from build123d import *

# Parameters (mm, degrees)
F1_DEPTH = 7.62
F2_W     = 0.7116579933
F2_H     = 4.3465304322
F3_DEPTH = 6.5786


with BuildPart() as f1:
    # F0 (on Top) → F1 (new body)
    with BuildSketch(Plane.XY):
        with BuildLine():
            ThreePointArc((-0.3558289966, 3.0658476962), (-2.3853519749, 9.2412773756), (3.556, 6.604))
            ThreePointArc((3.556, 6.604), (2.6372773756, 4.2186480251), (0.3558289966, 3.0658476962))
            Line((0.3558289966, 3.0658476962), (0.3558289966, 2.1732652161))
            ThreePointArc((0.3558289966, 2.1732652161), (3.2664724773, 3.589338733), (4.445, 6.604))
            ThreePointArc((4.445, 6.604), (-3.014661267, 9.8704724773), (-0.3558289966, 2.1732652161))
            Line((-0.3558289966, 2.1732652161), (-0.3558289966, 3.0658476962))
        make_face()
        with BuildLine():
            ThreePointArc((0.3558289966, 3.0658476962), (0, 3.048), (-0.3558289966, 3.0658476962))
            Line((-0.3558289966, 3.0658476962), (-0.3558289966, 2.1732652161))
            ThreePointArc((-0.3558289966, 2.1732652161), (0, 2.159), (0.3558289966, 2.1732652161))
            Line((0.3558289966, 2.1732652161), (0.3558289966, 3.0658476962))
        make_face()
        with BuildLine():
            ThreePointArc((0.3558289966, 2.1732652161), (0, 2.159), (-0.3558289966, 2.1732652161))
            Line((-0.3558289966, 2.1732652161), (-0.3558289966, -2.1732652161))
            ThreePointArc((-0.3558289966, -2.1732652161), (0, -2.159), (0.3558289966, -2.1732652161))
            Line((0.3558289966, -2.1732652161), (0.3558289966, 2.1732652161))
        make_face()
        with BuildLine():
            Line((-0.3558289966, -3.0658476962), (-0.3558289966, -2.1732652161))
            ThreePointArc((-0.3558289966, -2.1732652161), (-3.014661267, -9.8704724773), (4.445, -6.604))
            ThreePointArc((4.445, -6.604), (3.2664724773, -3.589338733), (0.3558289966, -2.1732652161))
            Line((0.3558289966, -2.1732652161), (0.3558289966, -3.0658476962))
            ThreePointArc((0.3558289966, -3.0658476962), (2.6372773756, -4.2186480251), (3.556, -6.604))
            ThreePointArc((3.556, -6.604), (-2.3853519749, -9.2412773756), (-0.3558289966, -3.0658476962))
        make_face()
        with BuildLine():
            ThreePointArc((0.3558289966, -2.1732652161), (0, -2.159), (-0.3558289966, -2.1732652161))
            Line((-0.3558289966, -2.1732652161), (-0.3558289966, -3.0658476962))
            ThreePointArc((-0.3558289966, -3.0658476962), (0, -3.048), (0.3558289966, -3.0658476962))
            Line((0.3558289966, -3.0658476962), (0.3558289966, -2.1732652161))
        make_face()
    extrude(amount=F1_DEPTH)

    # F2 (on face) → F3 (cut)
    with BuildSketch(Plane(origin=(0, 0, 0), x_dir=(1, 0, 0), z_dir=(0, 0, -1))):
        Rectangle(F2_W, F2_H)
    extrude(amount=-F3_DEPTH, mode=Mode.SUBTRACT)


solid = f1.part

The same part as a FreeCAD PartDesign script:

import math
import FreeCAD as App
import Part
import Sketcher
Q = App.Units.Quantity


def add_polygon(sketch, points):
    """Adds a closed chain of lines whose ends are joined by coincident constraints."""
    first, n = sketch.GeometryCount, len(points)
    for a, b in zip(points, points[1:] + points[:1]):
        sketch.addGeometry(Part.LineSegment(App.Vector(*a, 0), App.Vector(*b, 0)), False)
    for i in range(n):
        sketch.addConstraint(Sketcher.Constraint("Coincident", first + i, 2, first + (i + 1) % n, 1))

doc = App.newDocument("Part")
body = doc.addObject("PartDesign::Body", "Body")

# Sketch on XY plane
sketch1 = doc.addObject("Sketcher::SketchObject", "Sketch")
body.addObject(sketch1)
sketch1.AttachmentSupport = (doc.XY_Plane, [""])
sketch1.MapMode = "FlatFace"
sketch1.addGeometry(Part.ArcOfCircle(Part.Circle(App.Vector(0, 6.6, 0), App.Vector(0, 0, 1), 4.4), math.radians(-85), math.radians(0)), False)
sketch1.addGeometry(Part.ArcOfCircle(Part.Circle(App.Vector(0, 6.6, 0), App.Vector(0, 0, 1), 4.4), math.radians(0), math.radians(265)), False)
sketch1.addGeometry(Part.LineSegment(App.Vector(-0.4, 2.2, 0), App.Vector(-0.4, -2.2, 0)), False)
sketch1.addGeometry(Part.ArcOfCircle(Part.Circle(App.Vector(0, -6.6, 0), App.Vector(0, 0, 1), 4.4), math.radians(95), math.radians(360)), False)
sketch1.addGeometry(Part.ArcOfCircle(Part.Circle(App.Vector(0, -6.6, 0), App.Vector(0, 0, 1), 4.4), math.radians(0), math.radians(85)), False)
sketch1.addGeometry(Part.LineSegment(App.Vector(0.4, -2.2, 0), App.Vector(0.4, 2.2, 0)), False)
sketch1.addGeometry(Part.ArcOfCircle(Part.Circle(App.Vector(0, 6.6, 0), App.Vector(0, 0, 1), 3.6), math.radians(0), math.radians(264)), False)
sketch1.addGeometry(Part.ArcOfCircle(Part.Circle(App.Vector(0, 6.6, 0), App.Vector(0, 0, 1), 3.6), math.radians(-84), math.radians(0)), False)
sketch1.addGeometry(Part.ArcOfCircle(Part.Circle(App.Vector(0, 6.6, 0), App.Vector(0, 0, 1), 3.6), math.radians(-95.74), math.radians(-84.26)), False)
sketch1.addGeometry(Part.ArcOfCircle(Part.Circle(App.Vector(0, -6.6, 0), App.Vector(0, 0, 1), 3.6), math.radians(84.26), math.radians(95.74)), False)
sketch1.addGeometry(Part.ArcOfCircle(Part.Circle(App.Vector(0, -6.6, 0), App.Vector(0, 0, 1), 3.6), math.radians(0), math.radians(84)), False)
sketch1.addGeometry(Part.ArcOfCircle(Part.Circle(App.Vector(0, -6.6, 0), App.Vector(0, 0, 1), 3.6), math.radians(96), math.radians(360)), False)
sketch1.addConstraint(Sketcher.Constraint("Tangent", 0, 2, 1, 1))
sketch1.addConstraint(Sketcher.Constraint("Coincident", 1, 2, 2, 1))
sketch1.addConstraint(Sketcher.Constraint("Coincident", 2, 2, 3, 1))
sketch1.addConstraint(Sketcher.Constraint("Tangent", 3, 2, 4, 1))
sketch1.addConstraint(Sketcher.Constraint("Coincident", 4, 2, 5, 1))
sketch1.addConstraint(Sketcher.Constraint("Coincident", 5, 2, 0, 1))
sketch1.addConstraint(Sketcher.Constraint("Tangent", 6, 1, 7, 2))
sketch1.addConstraint(Sketcher.Constraint("Tangent", 7, 1, 8, 2))
sketch1.addConstraint(Sketcher.Constraint("Tangent", 8, 1, 6, 2))
sketch1.addConstraint(Sketcher.Constraint("Tangent", 9, 1, 10, 2))
sketch1.addConstraint(Sketcher.Constraint("Tangent", 10, 1, 11, 2))
sketch1.addConstraint(Sketcher.Constraint("Tangent", 11, 1, 9, 2))
sketch1.addConstraint(Sketcher.Constraint("Vertical", 2))
sketch1.addConstraint(Sketcher.Constraint("Vertical", 5))
sketch1.addConstraint(Sketcher.Constraint("Coincident", 6, 3, 0, 3))
sketch1.addConstraint(Sketcher.Constraint("Coincident", 9, 3, 3, 3))
sketch1.addConstraint(Sketcher.Constraint("Equal", 0, 1))
sketch1.addConstraint(Sketcher.Constraint("Equal", 1, 3))
sketch1.addConstraint(Sketcher.Constraint("Equal", 3, 4))
sketch1.addConstraint(Sketcher.Constraint("Equal", 8, 9))
sketch1.addConstraint(Sketcher.Constraint("Symmetric", 0, 3, 3, 3, -1, 1))
sketch1.addConstraint(Sketcher.Constraint("Symmetric", 2, 2, 4, 2, -2))
sketch1.addConstraint(Sketcher.Constraint("Horizontal", 8, 3, 0, 2))
sketch1.addConstraint(Sketcher.Constraint("Horizontal", 11, 3, 3, 2))
sketch1.addConstraint(Sketcher.Constraint("Horizontal", 0, 2, 6, 1))
sketch1.addConstraint(Sketcher.Constraint("Horizontal", 7, 1, 8, 1))
sketch1.addConstraint(Sketcher.Constraint("Horizontal", 3, 2, 10, 1))
sketch1.addConstraint(Sketcher.Constraint("Horizontal", 9, 1, 11, 1))
sketch1.addConstraint(Sketcher.Constraint("Vertical", 5, 2, 7, 1))
sketch1.addConstraint(Sketcher.Constraint("Vertical", 7, 1, 9, 1))
sketch1.addConstraint(Sketcher.Constraint("Radius", 6, Q("0.14 in")))
sketch1.addConstraint(Sketcher.Constraint("Radius", 0, Q("0.175 in")))
sketch1.addConstraint(Sketcher.Constraint("DistanceY", -1, 1, 0, 3, Q("0.26 in")))
sketch1.addConstraint(Sketcher.Constraint("DistanceY", 2, 2, 2, 1, Q("4.34653 mm")))
pad1 = doc.addObject("PartDesign::Pad", "Pad")
body.addObject(pad1)
pad1.Profile = sketch1
pad1.Length = Q("0.3 in")

# Sketch on XY plane
sketch2 = doc.addObject("Sketcher::SketchObject", "Sketch001")
body.addObject(sketch2)
sketch2.AttachmentSupport = (doc.XY_Plane, [""])
sketch2.MapMode = "FlatFace"
add_polygon(sketch2, [(-0.4, -2.2), (-0.4, 2.2), (0.4, 2.2), (0.4, -2.2)])  # lines 0-3
sketch2.addConstraint(Sketcher.Constraint("Vertical", 0))
sketch2.addConstraint(Sketcher.Constraint("Horizontal", 1))
sketch2.addConstraint(Sketcher.Constraint("Vertical", 2))
sketch2.addConstraint(Sketcher.Constraint("Horizontal", 3))
sketch2.addConstraint(Sketcher.Constraint("Symmetric", 0, 2, 2, 2, -1, 1))
sketch2.addConstraint(Sketcher.Constraint("DistanceY", 0, 1, 0, 2, Q("4.34653 mm")))
sketch2.addConstraint(Sketcher.Constraint("DistanceX", 1, 1, 1, 2, Q("0.711658 mm")))
pocket1 = doc.addObject("PartDesign::Pocket", "Pocket")
body.addObject(pocket1)
pocket1.Profile = sketch2
pocket1.Length = Q("0.259 in")
pocket1.Reversed = True

doc.recompute()
